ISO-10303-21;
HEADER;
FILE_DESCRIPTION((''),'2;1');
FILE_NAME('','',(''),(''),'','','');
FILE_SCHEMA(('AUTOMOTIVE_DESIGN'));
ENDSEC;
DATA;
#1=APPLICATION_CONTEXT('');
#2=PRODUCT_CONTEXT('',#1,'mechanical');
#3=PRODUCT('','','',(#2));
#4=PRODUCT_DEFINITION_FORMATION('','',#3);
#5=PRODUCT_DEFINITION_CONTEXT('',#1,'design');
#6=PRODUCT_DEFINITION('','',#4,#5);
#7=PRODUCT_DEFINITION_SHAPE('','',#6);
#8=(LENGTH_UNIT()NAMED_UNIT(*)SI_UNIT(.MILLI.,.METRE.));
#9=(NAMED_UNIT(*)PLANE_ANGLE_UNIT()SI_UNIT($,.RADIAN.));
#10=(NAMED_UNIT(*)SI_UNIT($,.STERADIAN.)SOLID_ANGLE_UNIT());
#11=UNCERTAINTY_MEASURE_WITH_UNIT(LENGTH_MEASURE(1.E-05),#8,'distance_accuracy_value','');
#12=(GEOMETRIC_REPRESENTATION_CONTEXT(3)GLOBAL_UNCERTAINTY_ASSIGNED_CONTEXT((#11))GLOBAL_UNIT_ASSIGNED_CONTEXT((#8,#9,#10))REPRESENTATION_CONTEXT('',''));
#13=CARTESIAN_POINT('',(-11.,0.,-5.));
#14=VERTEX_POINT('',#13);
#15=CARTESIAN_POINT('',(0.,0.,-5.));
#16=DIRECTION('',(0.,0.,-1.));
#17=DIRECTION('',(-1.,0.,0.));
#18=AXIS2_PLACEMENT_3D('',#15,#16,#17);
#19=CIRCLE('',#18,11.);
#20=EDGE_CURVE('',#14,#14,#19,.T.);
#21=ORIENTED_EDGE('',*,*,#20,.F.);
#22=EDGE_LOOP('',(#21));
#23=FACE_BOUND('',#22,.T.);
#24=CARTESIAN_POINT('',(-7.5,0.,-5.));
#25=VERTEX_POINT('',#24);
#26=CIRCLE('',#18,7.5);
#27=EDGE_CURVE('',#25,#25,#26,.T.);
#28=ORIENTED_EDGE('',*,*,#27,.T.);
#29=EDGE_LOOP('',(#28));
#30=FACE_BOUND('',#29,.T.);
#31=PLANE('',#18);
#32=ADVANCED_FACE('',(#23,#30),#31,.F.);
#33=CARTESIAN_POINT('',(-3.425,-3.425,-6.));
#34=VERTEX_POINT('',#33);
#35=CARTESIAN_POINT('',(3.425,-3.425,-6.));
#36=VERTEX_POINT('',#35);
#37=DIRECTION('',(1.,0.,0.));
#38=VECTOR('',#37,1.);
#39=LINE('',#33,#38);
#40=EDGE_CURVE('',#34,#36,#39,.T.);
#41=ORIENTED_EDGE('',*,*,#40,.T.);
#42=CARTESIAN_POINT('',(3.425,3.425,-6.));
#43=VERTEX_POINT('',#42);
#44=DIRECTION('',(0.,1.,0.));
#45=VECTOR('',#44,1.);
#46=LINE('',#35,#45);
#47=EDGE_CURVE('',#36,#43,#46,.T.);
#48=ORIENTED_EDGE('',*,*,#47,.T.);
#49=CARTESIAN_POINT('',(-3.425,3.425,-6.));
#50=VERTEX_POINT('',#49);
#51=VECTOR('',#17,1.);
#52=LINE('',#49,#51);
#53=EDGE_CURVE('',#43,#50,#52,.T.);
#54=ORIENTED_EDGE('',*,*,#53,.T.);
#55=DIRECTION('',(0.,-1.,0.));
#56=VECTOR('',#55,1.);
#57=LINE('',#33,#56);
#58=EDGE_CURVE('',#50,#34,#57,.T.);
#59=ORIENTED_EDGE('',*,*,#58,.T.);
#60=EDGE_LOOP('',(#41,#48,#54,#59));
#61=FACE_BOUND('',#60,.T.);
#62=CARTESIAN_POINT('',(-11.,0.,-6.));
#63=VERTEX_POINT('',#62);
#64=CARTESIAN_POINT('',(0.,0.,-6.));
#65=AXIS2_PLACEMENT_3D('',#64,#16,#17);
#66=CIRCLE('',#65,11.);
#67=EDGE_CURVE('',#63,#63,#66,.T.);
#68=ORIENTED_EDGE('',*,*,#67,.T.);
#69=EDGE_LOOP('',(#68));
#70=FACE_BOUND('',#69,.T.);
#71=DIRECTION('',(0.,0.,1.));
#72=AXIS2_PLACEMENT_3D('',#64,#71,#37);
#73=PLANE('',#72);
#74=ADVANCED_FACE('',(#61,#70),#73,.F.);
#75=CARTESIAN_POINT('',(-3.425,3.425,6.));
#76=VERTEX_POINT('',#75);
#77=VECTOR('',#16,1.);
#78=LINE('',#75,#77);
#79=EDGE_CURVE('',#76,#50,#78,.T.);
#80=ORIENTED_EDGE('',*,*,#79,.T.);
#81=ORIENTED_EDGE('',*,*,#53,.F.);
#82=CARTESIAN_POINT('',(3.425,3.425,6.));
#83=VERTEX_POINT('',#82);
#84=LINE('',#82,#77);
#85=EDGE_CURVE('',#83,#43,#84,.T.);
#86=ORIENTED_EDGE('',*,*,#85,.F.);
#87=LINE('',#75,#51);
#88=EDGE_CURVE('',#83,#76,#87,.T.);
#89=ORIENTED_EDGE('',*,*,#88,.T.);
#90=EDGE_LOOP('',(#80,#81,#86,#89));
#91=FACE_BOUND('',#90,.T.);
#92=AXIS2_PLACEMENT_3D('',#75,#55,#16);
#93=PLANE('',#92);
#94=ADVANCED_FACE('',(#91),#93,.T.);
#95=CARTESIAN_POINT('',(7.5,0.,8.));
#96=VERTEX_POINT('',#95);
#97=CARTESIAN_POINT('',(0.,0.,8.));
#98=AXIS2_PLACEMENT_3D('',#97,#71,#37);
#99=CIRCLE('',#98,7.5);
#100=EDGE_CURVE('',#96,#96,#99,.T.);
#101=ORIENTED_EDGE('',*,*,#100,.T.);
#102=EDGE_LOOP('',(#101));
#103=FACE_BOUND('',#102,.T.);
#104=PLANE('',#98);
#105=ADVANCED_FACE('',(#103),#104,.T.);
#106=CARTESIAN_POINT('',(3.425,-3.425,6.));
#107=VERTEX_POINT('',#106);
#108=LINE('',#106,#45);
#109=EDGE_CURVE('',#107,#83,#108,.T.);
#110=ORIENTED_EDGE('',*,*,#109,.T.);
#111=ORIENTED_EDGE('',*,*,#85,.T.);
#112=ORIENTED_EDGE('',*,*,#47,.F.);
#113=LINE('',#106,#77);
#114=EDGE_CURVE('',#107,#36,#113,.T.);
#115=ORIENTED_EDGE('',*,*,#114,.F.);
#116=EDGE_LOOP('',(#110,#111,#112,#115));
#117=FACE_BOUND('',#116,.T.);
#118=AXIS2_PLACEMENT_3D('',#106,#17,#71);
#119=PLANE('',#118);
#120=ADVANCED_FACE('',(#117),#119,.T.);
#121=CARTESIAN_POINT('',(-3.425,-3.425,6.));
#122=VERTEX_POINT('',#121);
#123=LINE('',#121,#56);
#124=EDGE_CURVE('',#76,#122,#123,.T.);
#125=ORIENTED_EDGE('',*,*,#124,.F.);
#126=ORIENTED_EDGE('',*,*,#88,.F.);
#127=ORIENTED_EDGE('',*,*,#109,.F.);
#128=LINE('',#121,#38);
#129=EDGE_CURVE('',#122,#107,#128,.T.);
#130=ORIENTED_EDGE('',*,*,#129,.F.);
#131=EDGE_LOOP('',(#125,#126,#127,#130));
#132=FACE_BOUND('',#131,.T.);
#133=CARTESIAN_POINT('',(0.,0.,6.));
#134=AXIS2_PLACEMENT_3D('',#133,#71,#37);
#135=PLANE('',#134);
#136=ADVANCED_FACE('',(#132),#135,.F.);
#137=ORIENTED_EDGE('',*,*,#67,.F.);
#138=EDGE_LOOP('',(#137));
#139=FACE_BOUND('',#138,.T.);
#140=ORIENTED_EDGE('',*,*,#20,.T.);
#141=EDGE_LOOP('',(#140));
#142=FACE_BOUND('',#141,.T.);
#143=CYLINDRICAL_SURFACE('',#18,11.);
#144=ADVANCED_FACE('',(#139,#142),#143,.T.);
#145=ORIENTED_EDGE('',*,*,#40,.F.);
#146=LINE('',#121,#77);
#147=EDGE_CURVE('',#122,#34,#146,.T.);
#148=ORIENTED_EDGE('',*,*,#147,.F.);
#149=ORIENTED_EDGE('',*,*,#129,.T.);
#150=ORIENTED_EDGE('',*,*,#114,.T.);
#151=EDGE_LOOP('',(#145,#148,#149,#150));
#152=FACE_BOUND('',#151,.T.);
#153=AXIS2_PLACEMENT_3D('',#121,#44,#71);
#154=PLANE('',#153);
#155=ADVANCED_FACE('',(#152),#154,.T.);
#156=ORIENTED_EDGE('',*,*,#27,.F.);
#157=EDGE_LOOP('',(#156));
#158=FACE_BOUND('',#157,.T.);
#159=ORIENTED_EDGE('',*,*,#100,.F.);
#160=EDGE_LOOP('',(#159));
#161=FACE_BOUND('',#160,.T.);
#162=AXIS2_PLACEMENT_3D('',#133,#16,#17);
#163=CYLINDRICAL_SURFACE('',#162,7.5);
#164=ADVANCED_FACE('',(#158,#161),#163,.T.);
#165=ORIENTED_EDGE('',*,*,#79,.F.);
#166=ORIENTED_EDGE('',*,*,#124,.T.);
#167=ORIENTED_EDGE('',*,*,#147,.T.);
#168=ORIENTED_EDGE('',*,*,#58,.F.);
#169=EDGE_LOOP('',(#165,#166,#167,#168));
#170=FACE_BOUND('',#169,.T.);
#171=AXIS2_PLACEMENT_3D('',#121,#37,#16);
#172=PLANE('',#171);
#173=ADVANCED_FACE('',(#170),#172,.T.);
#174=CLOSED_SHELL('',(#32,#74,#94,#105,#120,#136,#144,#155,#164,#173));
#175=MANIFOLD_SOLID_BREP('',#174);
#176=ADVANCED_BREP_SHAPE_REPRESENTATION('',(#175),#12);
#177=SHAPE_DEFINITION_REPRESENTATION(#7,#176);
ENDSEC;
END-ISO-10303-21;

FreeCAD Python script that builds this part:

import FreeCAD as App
import Part
import Sketcher
from FreeCAD import Vector


def add_polygon(sketch, points):
    """Adds a closed chain of lines whose ends are joined by coincident constraints."""
    first, n = sketch.GeometryCount, len(points)
    for a, b in zip(points, points[1:] + points[:1]):
        sketch.addGeometry(Part.LineSegment(App.Vector(*a, 0), App.Vector(*b, 0)), False)
    for i in range(n):
        sketch.addConstraint(Sketcher.Constraint("Coincident", first + i, 2, first + (i + 1) % n, 1))

doc = App.newDocument("Part")
body = doc.addObject("PartDesign::Body", "Body")

# Sketch on XY plane
sketch1 = body.newObject("Sketcher::SketchObject", "Sketch")
sketch1.AttachmentSupport = (doc.getObject("XY_Plane"), [""])
sketch1.MapMode = "FlatFace"
sketch1.addGeometry(Part.Circle(Vector(0, 0, 0), Vector(0, 0, 1), 7.5), False)  # 0
add_polygon(sketch1, [(3.425, -3.425), (-3.425, -3.425), (-3.425, 3.425), (3.425, 3.425)])  # lines 1-4
sketch1.addConstraint([
    Sketcher.Constraint("Horizontal", 1),
    Sketcher.Constraint("Vertical", 2),
    Sketcher.Constraint("Horizontal", 3),
    Sketcher.Constraint("Vertical", 4),
    Sketcher.Constraint("Coincident", 0, 3, -1, 1),
    Sketcher.Constraint("Symmetric", 1, 2, 3, 2, -1, 1),
    Sketcher.Constraint("Equal", 3, 2),
    Sketcher.Constraint("Diameter", 0, 15.0),
    Sketcher.Constraint("DistanceX", 1, 2, 1, 1, 6.85),
])
pad1 = body.newObject("PartDesign::Pad", "Pad")
pad1.Profile = sketch1
pad1.Length = 12
pad1.Midplane = True

# Sketch on XY plane
sketch2 = body.newObject("Sketcher::SketchObject", "Sketch001")
sketch2.AttachmentSupport = (doc.getObject("XY_Plane"), [""])
sketch2.MapMode = "FlatFace"
sketch2.AttachmentOffset = App.Placement(Vector(0, 0, -6), App.Rotation())
sketch2.addGeometry([
    Part.Circle(Vector(0, 0, 0), Vector(0, 0, 1), 11),
    Part.Circle(Vector(0, 0, 0), Vector(0, 0, 1), 7.5),
], False)
sketch2.addConstraint([
    Sketcher.Constraint("Coincident", 0, 3, -1, 1),
    Sketcher.Constraint("Coincident", 1, 3, -1, 1),
    Sketcher.Constraint("Diameter", 0, 22.0),
    Sketcher.Constraint("Diameter", 1, 15.0),
])
pad2 = body.newObject("PartDesign::Pad", "Pad001")
pad2.Profile = sketch2
pad2.Length = 1

# Sketch on XY plane
sketch3 = body.newObject("Sketcher::SketchObject", "Sketch002")
sketch3.AttachmentSupport = (doc.getObject("XY_Plane"), [""])
sketch3.MapMode = "FlatFace"
sketch3.AttachmentOffset = App.Placement(Vector(0, 0, 6), App.Rotation())
sketch3.addGeometry(Part.Circle(Vector(0, 0, 0), Vector(0, 0, 1), 7.5), False)
sketch3.addConstraint([
    Sketcher.Constraint("Coincident", 0, 3, -1, 1),
    Sketcher.Constraint("Diameter", 0, 15.0),
])
pad3 = body.newObject("PartDesign::Pad", "Pad002")
pad3.Profile = sketch3
pad3.Length = 2

doc.recompute()
